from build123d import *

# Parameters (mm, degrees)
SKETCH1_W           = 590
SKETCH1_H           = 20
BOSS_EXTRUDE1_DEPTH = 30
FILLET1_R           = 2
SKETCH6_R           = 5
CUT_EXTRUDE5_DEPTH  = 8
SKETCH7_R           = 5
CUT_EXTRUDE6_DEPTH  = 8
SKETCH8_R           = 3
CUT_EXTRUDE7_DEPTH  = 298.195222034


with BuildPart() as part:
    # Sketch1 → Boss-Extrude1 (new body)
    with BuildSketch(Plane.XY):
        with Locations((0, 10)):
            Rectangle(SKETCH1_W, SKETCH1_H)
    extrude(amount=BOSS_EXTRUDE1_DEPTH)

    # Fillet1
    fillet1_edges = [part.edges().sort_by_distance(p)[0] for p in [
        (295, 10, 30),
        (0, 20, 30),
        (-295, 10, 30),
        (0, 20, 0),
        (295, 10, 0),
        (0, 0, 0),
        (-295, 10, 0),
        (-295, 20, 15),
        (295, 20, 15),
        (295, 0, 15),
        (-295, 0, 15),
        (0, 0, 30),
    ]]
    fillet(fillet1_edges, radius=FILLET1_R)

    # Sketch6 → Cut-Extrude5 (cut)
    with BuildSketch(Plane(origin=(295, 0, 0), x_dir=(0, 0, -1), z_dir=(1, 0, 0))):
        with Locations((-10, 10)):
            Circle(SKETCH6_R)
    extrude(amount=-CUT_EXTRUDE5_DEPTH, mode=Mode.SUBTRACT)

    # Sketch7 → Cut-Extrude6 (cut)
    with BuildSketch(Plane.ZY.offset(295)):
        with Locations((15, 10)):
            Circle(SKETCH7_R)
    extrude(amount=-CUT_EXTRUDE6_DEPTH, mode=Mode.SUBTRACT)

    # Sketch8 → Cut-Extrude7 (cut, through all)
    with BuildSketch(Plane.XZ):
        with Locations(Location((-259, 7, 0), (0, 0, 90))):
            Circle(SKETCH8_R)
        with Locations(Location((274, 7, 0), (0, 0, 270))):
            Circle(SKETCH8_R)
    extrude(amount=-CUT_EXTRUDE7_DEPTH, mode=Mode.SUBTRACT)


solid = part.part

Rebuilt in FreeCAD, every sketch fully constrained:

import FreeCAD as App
import Part
import Sketcher
from FreeCAD import Vector

doc = App.newDocument("Part")
body = doc.addObject("PartDesign::Body", "Body")

sketch1 = body.newObject("Sketcher::SketchObject", "Sketch")
sketch1.AttachmentSupport = (doc.getObject("XY_Plane"), [""])
sketch1.MapMode = "FlatFace"
sketch1.addGeometry(Part.LineSegment(Vector(-295, 20, 0), Vector(-295, 0, 0)), False)
sketch1.addGeometry(Part.LineSegment(Vector(-295, 0, 0), Vector(295, 0, 0)), False)
sketch1.addGeometry(Part.LineSegment(Vector(295, 0, 0), Vector(295, 20, 0)), False)
sketch1.addGeometry(Part.LineSegment(Vector(295, 20, 0), Vector(-295, 20, 0)), False)
sketch1.addConstraint(Sketcher.Constraint("Coincident", 0, 2, 1, 1))
sketch1.addConstraint(Sketcher.Constraint("Coincident", 1, 2, 2, 1))
sketch1.addConstraint(Sketcher.Constraint("Coincident", 2, 2, 3, 1))
sketch1.addConstraint(Sketcher.Constraint("Coincident", 3, 2, 0, 1))
sketch1.addConstraint(Sketcher.Constraint("Vertical", 0))
sketch1.addConstraint(Sketcher.Constraint("Horizontal", 1))
sketch1.addConstraint(Sketcher.Constraint("Vertical", 2))
sketch1.addConstraint(Sketcher.Constraint("Horizontal", 3))
sketch1.addConstraint(Sketcher.Constraint("Symmetric", 0, 2, 1, 2, -1, 1))
sketch1.addConstraint(Sketcher.Constraint("DistanceX", 1, 1, 1, 2, 590.0))
sketch1.addConstraint(Sketcher.Constraint("DistanceY", 0, 2, 0, 1, 20.0))
pad1 = body.newObject("PartDesign::Pad", "Pad")
pad1.Profile = sketch1
pad1.Length = 30
doc.recompute()

fillet = body.newObject("PartDesign::Fillet", "Fillet")
fillet.Base = (pad1, ["Edge1"])
fillet.UseAllEdges = True
fillet.Radius = 2

sketch2 = body.newObject("Sketcher::SketchObject", "Sketch001")
sketch2.AttachmentSupport = (doc.getObject("YZ_Plane"), [""])
sketch2.MapMode = "FlatFace"
sketch2.AttachmentOffset = App.Placement(Vector(0, 0, 295), App.Rotation())
sketch2.addGeometry(Part.Circle(Vector(10, 10, 0), Vector(0, 0, 1), 5), False)
sketch2.addConstraint(Sketcher.Constraint("Diameter", 0, 10.0))
sketch2.addConstraint(Sketcher.Constraint("DistanceX", -1, 1, 0, 3, 10.0))
sketch2.addConstraint(Sketcher.Constraint("DistanceY", -1, 1, 0, 3, 10.0))
pocket1 = body.newObject("PartDesign::Pocket", "Pocket")
pocket1.Profile = sketch2
pocket1.Length = 8

sketch3 = body.newObject("Sketcher::SketchObject", "Sketch002")
sketch3.AttachmentSupport = (doc.getObject("YZ_Plane"), [""])
sketch3.MapMode = "FlatFace"
sketch3.AttachmentOffset = App.Placement(Vector(0, 0, -295), App.Rotation())
sketch3.addGeometry(Part.Circle(Vector(10, 15, 0), Vector(0, 0, 1), 5), False)
sketch3.addConstraint(Sketcher.Constraint("Diameter", 0, 10.0))
sketch3.addConstraint(Sketcher.Constraint("DistanceX", -1, 1, 0, 3, 10.0))
sketch3.addConstraint(Sketcher.Constraint("DistanceY", -1, 1, 0, 3, 15.0))
pocket2 = body.newObject("PartDesign::Pocket", "Pocket001")
pocket2.Profile = sketch3
pocket2.Length = 8
pocket2.Reversed = True

sketch4 = body.newObject("Sketcher::SketchObject", "Sketch003")
sketch4.AttachmentSupport = (doc.getObject("XZ_Plane"), [""])
sketch4.MapMode = "FlatFace"
sketch4.addGeometry(Part.Circle(Vector(-259, 7, 0), Vector(0, 0, 1), 3), False)
sketch4.addGeometry(Part.Circle(Vector(274, 7, 0), Vector(0, 0, 1), 3), False)
sketch4.addConstraint(Sketcher.Constraint("Equal", 0, 1))
sketch4.addConstraint(Sketcher.Constraint("Horizontal", 0, 3, 1, 3))
sketch4.addConstraint(Sketcher.Constraint("Diameter", 0, 6.0))
sketch4.addConstraint(Sketcher.Constraint("DistanceX", 0, 3, -1, 1, 259.0))
sketch4.addConstraint(Sketcher.Constraint("DistanceY", -1, 1, 0, 3, 7.0))
sketch4.addConstraint(Sketcher.Constraint("DistanceX", -1, 1, 1, 3, 274.0))
pocket3 = body.newObject("PartDesign::Pocket", "Pocket002")
pocket3.Profile = sketch4
pocket3.Type = "ThroughAll"

doc.recompute()
